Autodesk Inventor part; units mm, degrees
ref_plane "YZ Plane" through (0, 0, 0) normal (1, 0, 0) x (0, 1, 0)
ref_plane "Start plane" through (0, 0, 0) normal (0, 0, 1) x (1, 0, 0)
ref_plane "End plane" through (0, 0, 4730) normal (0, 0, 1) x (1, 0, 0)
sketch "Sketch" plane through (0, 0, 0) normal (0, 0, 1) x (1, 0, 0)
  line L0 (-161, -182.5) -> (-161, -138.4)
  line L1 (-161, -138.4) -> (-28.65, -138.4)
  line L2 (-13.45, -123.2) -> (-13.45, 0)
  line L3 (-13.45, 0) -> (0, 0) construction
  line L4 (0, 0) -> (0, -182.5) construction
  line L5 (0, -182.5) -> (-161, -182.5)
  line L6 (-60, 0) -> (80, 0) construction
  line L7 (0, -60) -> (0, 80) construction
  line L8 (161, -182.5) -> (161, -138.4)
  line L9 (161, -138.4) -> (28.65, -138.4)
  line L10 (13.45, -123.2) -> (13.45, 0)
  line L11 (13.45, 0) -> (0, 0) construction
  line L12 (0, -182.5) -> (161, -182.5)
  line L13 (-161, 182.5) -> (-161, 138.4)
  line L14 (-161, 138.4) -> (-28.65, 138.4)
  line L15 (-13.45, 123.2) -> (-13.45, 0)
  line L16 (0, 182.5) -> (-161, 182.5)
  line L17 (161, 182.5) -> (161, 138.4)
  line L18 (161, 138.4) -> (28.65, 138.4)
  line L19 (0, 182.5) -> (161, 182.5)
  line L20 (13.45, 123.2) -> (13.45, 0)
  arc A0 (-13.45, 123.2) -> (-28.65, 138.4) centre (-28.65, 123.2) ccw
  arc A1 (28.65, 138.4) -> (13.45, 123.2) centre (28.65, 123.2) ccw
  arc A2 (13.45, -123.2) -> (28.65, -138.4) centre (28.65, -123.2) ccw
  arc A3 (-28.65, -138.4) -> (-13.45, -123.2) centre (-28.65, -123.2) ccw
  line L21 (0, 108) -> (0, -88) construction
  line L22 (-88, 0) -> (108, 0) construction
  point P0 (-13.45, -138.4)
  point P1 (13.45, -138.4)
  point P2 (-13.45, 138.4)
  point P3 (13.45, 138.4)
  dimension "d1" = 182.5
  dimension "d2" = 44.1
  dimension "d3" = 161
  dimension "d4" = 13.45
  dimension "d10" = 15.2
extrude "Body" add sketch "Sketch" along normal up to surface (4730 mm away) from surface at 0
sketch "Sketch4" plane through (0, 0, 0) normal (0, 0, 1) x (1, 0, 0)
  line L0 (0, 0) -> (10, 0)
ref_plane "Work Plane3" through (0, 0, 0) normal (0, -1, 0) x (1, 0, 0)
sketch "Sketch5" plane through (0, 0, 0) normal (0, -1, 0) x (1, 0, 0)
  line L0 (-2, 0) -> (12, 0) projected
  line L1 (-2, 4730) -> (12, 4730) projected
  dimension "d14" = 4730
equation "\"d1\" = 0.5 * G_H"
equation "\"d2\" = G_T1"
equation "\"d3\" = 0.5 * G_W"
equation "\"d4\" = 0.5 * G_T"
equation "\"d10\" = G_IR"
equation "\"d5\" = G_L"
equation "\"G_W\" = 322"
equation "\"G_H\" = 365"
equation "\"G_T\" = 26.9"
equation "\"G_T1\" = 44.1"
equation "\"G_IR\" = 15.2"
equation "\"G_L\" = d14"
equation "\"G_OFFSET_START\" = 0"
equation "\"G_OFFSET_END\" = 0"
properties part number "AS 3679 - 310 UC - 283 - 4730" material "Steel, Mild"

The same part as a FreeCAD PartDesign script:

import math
import FreeCAD as App
import Part
import Sketcher

V = App.Vector
Q = App.Units.Quantity

doc = App.newDocument("Part")
body = doc.addObject("PartDesign::Body", "Body")

# Sketch on XY plane
sketch1 = body.newObject("Sketcher::SketchObject", "Sketch")
sketch1.AttachmentSupport = (doc.getObject("XY_Plane"), [""])
sketch1.MapMode = "FlatFace"
sketch1.addGeometry(Part.LineSegment(V(-161, -138, 0), V(-161, -182, 0)), False)
sketch1.addGeometry(Part.LineSegment(V(-161, -182, 0), V(161, -182, 0)), False)
sketch1.addGeometry(Part.LineSegment(V(161, -182, 0), V(161, -138, 0)), False)
sketch1.addGeometry(Part.LineSegment(V(161, -138, 0), V(29, -138, 0)), False)
sketch1.addGeometry(Part.ArcOfCircle(Part.Circle(V(29, -123, 0), V(0, 0, 1), 15), math.radians(180), math.radians(270)), False)
sketch1.addGeometry(Part.LineSegment(V(13, -123, 0), V(13, 123, 0)), False)
sketch1.addGeometry(Part.ArcOfCircle(Part.Circle(V(29, 123, 0), V(0, 0, 1), 15), math.radians(90), math.radians(180)), False)
sketch1.addGeometry(Part.LineSegment(V(29, 138, 0), V(161, 138, 0)), False)
sketch1.addGeometry(Part.LineSegment(V(161, 138, 0), V(161, 182, 0)), False)
sketch1.addGeometry(Part.LineSegment(V(161, 182, 0), V(-161, 182, 0)), False)
sketch1.addGeometry(Part.LineSegment(V(-161, 182, 0), V(-161, 138, 0)), False)
sketch1.addGeometry(Part.LineSegment(V(-161, 138, 0), V(-29, 138, 0)), False)
sketch1.addGeometry(Part.ArcOfCircle(Part.Circle(V(-29, 123, 0), V(0, 0, 1), 15), math.radians(0), math.radians(90)), False)
sketch1.addGeometry(Part.LineSegment(V(-13, 123, 0), V(-13, -123, 0)), False)
sketch1.addGeometry(Part.ArcOfCircle(Part.Circle(V(-29, -123, 0), V(0, 0, 1), 15), math.radians(-90), math.radians(0)), False)
sketch1.addGeometry(Part.LineSegment(V(-29, -138, 0), V(-161, -138, 0)), False)
sketch1.addConstraint(Sketcher.Constraint("Coincident", 0, 2, 1, 1))
sketch1.addConstraint(Sketcher.Constraint("Coincident", 1, 2, 2, 1))
sketch1.addConstraint(Sketcher.Constraint("Coincident", 2, 2, 3, 1))
sketch1.addConstraint(Sketcher.Constraint("Tangent", 3, 2, 4, 2))
sketch1.addConstraint(Sketcher.Constraint("Tangent", 4, 1, 5, 1))
sketch1.addConstraint(Sketcher.Constraint("Tangent", 5, 2, 6, 2))
sketch1.addConstraint(Sketcher.Constraint("Tangent", 6, 1, 7, 1))
sketch1.addConstraint(Sketcher.Constraint("Coincident", 7, 2, 8, 1))
sketch1.addConstraint(Sketcher.Constraint("Coincident", 8, 2, 9, 1))
sketch1.addConstraint(Sketcher.Constraint("Coincident", 9, 2, 10, 1))
sketch1.addConstraint(Sketcher.Constraint("Coincident", 10, 2, 11, 1))
sketch1.addConstraint(Sketcher.Constraint("Tangent", 11, 2, 12, 2))
sketch1.addConstraint(Sketcher.Constraint("Tangent", 12, 1, 13, 1))
sketch1.addConstraint(Sketcher.Constraint("Tangent", 13, 2, 14, 2))
sketch1.addConstraint(Sketcher.Constraint("Tangent", 14, 1, 15, 1))
sketch1.addConstraint(Sketcher.Constraint("Coincident", 15, 2, 0, 1))
sketch1.addConstraint(Sketcher.Constraint("Vertical", 0))
sketch1.addConstraint(Sketcher.Constraint("Horizontal", 1))
sketch1.addConstraint(Sketcher.Constraint("Vertical", 2))
sketch1.addConstraint(Sketcher.Constraint("Horizontal", 3))
sketch1.addConstraint(Sketcher.Constraint("Vertical", 5))
sketch1.addConstraint(Sketcher.Constraint("Horizontal", 7))
sketch1.addConstraint(Sketcher.Constraint("Vertical", 8))
sketch1.addConstraint(Sketcher.Constraint("Horizontal", 9))
sketch1.addConstraint(Sketcher.Constraint("Vertical", 10))
sketch1.addConstraint(Sketcher.Constraint("Horizontal", 11))
sketch1.addConstraint(Sketcher.Constraint("Vertical", 13))
sketch1.addConstraint(Sketcher.Constraint("Horizontal", 15))
sketch1.addConstraint(Sketcher.Constraint("Equal", 4, 6))
sketch1.addConstraint(Sketcher.Constraint("Equal", 6, 12))
sketch1.addConstraint(Sketcher.Constraint("Equal", 12, 14))
sketch1.addConstraint(Sketcher.Constraint("Symmetric", 4, 3, 12, 3, -1, 1))
sketch1.addConstraint(Sketcher.Constraint("Symmetric", 0, 2, 8, 2, -1, 1))
sketch1.addConstraint(Sketcher.Constraint("Symmetric", 7, 2, 10, 2, -2))
sketch1.addConstraint(Sketcher.Constraint("Symmetric", 2, 2, 15, 2, -2))
sketch1.addConstraint(Sketcher.Constraint("Radius", 4, Q("15.2 mm")))
sketch1.addConstraint(Sketcher.Constraint("DistanceY", 0, 2, 0, 1, Q("44.1 mm")))
sketch1.addConstraint(Sketcher.Constraint("DistanceX", 0, 2, -1, 1, Q("161 mm")))
sketch1.addConstraint(Sketcher.Constraint("DistanceY", 0, 2, -1, 1, Q("182.5 mm")))
sketch1.addConstraint(Sketcher.Constraint("DistanceX", -1, 1, 4, 1, Q("13.45 mm")))
pad1 = body.newObject("PartDesign::Pad", "Pad")
pad1.Profile = sketch1
pad1.Length = 4730

doc.recompute()
